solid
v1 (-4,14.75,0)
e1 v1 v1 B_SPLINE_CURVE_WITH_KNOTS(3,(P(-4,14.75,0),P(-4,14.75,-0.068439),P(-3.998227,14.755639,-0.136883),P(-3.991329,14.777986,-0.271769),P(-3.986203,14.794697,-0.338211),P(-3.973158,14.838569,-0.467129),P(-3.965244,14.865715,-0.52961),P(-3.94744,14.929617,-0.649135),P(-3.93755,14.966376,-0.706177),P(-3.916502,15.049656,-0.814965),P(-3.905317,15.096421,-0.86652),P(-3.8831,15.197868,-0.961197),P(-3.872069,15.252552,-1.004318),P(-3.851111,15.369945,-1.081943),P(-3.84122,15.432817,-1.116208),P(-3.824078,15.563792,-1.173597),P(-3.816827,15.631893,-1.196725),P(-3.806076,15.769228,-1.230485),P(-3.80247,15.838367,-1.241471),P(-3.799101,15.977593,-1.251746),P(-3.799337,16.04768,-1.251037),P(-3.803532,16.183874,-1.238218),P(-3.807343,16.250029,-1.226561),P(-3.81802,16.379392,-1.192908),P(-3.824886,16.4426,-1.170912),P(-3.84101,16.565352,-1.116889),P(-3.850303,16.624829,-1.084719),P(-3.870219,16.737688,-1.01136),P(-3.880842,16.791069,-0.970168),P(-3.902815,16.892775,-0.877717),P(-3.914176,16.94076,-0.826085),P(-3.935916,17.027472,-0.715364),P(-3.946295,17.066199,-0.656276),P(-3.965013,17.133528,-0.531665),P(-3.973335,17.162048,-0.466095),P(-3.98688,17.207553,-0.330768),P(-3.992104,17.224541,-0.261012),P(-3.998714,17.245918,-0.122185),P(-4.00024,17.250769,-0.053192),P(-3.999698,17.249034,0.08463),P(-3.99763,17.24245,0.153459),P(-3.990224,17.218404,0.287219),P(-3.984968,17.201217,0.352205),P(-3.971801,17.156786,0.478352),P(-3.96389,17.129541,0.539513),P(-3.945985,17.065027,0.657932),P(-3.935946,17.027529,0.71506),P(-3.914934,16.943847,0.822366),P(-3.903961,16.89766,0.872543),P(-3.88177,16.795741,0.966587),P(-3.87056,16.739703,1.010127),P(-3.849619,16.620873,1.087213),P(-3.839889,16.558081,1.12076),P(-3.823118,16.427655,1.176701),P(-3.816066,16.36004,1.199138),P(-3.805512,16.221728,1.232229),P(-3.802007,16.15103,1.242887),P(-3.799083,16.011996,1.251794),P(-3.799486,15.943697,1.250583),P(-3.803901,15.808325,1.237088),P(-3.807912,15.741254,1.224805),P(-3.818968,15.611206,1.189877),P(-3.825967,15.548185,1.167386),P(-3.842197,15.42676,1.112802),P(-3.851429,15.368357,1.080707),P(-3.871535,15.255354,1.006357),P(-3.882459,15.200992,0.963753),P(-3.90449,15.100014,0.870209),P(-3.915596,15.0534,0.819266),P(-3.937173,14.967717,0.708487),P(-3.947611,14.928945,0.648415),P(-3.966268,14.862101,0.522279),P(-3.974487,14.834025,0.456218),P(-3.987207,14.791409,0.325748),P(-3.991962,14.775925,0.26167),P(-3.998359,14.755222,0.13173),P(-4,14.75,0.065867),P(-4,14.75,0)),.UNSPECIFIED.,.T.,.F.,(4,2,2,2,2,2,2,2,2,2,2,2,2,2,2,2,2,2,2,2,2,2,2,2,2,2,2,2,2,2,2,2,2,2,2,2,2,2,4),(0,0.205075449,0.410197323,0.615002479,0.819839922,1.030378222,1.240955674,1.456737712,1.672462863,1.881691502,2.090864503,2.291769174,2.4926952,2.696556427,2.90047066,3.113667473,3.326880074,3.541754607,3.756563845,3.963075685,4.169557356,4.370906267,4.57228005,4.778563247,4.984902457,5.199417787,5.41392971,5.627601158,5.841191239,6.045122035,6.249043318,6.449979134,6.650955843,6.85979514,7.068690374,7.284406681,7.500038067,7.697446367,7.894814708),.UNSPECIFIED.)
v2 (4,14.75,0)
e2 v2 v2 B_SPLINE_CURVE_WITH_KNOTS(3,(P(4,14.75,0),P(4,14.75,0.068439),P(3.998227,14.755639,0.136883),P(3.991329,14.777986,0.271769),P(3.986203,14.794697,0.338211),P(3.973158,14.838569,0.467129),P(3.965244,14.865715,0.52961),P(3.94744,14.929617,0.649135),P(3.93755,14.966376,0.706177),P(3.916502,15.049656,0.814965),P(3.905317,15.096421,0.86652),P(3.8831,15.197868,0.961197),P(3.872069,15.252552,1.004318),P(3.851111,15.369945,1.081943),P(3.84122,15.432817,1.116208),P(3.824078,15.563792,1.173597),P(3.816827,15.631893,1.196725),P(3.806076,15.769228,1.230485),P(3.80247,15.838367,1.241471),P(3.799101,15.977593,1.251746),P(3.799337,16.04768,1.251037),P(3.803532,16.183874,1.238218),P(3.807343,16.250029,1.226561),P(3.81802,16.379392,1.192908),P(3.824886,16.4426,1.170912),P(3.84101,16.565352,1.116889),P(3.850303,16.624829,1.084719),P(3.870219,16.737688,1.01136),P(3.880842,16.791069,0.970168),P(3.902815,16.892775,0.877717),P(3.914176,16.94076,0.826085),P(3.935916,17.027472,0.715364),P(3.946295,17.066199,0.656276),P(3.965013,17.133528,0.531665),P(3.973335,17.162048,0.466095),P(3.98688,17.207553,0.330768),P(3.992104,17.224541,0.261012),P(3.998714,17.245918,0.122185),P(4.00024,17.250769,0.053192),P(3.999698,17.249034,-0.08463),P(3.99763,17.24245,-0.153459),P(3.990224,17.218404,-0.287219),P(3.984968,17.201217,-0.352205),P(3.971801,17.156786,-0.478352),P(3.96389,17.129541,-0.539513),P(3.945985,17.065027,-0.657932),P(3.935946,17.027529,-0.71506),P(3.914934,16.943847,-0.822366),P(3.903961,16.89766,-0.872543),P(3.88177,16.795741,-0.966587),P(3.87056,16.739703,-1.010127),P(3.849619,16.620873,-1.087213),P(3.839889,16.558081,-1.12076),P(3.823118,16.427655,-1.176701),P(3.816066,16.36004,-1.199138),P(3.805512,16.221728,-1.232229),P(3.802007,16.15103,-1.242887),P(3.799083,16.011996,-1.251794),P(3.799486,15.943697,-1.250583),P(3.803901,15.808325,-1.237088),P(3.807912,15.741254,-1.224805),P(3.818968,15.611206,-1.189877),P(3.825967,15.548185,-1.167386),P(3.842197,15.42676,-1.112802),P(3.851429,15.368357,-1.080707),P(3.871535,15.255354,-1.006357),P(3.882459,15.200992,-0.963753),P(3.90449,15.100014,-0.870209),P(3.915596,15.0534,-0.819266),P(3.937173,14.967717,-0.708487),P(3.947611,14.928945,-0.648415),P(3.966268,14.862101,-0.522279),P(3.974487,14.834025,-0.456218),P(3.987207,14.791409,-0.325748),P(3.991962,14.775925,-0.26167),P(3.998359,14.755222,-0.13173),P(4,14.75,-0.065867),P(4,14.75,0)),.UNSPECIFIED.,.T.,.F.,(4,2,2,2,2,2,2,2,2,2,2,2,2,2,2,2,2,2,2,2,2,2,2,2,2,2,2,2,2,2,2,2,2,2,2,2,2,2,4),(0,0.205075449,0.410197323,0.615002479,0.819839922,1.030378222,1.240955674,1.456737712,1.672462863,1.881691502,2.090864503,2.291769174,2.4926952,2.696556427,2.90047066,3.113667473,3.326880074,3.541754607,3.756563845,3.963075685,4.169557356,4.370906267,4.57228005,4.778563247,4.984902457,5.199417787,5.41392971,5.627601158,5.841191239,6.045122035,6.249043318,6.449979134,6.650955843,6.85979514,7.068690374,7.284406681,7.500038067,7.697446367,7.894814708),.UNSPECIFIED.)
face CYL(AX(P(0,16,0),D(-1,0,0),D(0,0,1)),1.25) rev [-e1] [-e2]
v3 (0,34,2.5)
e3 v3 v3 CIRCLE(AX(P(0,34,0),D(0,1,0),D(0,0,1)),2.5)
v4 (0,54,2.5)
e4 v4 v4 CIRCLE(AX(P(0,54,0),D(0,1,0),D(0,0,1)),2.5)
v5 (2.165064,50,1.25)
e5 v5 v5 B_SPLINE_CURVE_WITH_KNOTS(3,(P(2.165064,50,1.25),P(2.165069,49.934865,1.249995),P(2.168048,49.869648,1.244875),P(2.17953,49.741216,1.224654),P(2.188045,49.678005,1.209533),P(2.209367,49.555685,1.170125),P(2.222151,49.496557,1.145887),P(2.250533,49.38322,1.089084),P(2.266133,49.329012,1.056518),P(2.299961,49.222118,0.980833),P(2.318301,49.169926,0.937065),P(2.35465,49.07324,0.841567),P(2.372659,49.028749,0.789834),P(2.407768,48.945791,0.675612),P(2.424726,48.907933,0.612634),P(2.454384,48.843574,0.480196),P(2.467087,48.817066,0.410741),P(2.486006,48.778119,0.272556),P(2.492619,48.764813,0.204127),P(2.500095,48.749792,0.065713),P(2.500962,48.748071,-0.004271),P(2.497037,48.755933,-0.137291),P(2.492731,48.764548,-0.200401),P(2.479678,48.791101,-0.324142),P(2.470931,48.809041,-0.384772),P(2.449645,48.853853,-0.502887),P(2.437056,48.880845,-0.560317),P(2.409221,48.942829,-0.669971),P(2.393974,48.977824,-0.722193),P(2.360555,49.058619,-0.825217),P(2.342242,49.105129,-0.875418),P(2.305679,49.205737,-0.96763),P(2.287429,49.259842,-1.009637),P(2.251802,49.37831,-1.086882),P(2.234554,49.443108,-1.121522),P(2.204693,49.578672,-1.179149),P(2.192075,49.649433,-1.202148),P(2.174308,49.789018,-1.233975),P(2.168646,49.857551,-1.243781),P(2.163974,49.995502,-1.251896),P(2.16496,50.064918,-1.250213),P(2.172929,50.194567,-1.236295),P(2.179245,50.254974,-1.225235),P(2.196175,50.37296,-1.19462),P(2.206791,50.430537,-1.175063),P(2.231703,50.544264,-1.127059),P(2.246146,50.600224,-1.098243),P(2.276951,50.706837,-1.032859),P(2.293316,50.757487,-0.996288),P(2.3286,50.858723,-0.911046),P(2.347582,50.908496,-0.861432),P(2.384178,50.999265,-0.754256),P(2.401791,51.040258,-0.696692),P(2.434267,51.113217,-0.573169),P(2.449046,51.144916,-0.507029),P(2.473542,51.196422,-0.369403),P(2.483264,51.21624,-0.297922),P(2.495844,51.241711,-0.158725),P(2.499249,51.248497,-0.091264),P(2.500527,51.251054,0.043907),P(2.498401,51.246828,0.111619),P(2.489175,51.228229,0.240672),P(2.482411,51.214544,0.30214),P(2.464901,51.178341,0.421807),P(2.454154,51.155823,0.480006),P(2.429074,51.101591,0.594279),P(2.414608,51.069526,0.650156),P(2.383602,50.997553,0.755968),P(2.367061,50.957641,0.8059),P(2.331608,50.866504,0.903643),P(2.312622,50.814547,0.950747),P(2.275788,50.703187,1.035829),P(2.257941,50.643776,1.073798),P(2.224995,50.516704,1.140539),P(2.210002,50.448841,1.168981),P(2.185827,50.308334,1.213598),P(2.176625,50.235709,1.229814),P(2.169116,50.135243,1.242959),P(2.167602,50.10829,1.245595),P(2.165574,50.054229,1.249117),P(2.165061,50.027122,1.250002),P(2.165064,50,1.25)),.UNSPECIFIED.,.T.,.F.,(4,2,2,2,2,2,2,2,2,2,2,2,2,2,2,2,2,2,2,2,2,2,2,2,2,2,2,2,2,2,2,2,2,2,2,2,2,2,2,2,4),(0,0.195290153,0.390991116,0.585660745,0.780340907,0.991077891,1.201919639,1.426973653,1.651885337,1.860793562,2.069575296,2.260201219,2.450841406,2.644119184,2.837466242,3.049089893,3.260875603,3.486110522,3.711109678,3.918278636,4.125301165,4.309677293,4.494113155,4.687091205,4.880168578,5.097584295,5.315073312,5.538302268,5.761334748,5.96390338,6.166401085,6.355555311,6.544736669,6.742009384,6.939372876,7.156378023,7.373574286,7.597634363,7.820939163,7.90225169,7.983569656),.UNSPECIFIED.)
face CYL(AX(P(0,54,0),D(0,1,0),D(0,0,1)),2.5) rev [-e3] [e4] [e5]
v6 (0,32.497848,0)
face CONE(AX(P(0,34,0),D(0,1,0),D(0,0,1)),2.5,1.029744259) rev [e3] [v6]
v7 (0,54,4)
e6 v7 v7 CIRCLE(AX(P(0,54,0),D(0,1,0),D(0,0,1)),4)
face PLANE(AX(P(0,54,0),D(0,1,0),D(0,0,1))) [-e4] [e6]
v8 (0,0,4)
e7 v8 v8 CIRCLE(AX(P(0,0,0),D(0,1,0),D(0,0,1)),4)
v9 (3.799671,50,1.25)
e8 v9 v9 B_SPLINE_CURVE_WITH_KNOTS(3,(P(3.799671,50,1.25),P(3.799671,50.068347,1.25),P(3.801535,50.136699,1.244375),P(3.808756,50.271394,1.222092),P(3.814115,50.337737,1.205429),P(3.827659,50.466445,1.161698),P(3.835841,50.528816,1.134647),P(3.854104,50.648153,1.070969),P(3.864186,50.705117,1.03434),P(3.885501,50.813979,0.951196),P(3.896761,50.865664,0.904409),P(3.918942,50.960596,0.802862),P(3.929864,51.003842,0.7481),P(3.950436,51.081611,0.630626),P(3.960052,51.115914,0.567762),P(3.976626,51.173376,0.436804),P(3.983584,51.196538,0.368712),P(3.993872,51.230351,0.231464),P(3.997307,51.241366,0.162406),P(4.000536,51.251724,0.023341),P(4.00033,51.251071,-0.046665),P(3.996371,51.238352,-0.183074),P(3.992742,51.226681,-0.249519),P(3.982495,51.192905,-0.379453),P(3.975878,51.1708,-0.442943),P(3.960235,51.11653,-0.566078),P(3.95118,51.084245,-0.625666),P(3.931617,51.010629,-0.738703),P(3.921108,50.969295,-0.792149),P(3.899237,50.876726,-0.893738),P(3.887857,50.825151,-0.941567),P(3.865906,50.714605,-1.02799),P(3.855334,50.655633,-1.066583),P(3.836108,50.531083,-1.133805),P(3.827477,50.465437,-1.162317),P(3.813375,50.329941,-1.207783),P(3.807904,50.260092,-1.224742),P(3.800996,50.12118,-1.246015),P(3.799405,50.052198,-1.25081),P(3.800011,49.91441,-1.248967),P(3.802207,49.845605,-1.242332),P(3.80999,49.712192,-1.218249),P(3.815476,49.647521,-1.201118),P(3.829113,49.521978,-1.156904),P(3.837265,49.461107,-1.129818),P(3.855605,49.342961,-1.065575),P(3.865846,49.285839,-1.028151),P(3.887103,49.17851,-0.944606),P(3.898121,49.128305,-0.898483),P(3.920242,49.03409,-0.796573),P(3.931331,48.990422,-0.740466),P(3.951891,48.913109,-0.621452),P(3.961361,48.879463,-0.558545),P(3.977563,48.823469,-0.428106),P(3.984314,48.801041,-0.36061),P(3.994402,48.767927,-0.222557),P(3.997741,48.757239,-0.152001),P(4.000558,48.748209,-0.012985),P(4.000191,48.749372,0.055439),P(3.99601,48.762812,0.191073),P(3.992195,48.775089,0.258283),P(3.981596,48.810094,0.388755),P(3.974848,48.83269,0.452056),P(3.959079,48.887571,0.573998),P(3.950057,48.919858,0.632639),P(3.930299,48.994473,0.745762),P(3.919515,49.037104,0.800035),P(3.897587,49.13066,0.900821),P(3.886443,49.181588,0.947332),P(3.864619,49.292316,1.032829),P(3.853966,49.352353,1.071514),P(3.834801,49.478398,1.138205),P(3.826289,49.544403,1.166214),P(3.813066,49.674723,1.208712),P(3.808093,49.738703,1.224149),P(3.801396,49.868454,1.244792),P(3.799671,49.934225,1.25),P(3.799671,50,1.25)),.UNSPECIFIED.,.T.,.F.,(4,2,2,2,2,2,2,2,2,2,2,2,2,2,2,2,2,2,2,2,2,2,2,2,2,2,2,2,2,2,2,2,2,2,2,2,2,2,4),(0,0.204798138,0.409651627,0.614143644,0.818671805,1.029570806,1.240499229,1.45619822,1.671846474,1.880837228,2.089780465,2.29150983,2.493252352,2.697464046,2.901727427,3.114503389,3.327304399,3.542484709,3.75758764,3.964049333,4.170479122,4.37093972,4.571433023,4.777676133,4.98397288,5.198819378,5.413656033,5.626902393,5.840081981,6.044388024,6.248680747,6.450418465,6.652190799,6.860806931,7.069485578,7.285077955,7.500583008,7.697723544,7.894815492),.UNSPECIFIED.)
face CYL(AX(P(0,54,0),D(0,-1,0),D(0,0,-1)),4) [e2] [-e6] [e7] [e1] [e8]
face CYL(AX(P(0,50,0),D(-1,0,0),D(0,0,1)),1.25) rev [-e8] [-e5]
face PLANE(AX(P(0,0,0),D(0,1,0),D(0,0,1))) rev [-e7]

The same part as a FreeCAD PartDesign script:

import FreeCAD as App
import Part
import Sketcher
from FreeCAD import Vector
Q = App.Units.Quantity


def add_polygon(sketch, points):
    """Adds a closed chain of lines whose ends are joined by coincident constraints."""
    first, n = sketch.GeometryCount, len(points)
    for a, b in zip(points, points[1:] + points[:1]):
        sketch.addGeometry(Part.LineSegment(App.Vector(*a, 0), App.Vector(*b, 0)), False)
    for i in range(n):
        sketch.addConstraint(Sketcher.Constraint("Coincident", first + i, 2, first + (i + 1) % n, 1))

doc = App.newDocument("Part")
body = doc.addObject("PartDesign::Body", "Body")

# Sketch on XZ plane
sketch1 = doc.addObject("Sketcher::SketchObject", "Sketch")
body.addObject(sketch1)
sketch1.AttachmentSupport = (doc.XZ_Plane, [""])
sketch1.MapMode = "FlatFace"
sketch1.addGeometry(Part.Circle(Vector(0, 0, 0), Vector(0, 0, 1), 4), False)
sketch1.addConstraint(Sketcher.Constraint("Coincident", 0, 3, -1, 1))
sketch1.addConstraint(Sketcher.Constraint("Diameter", 0, Q("8 mm")))
pad1 = doc.addObject("PartDesign::Pad", "Pad")
body.addObject(pad1)
pad1.Profile = sketch1
pad1.Length = 54
pad1.Reversed = True

# Sketch on XZ plane
sketch2 = doc.addObject("Sketcher::SketchObject", "Sketch001")
body.addObject(sketch2)
sketch2.AttachmentSupport = (doc.XZ_Plane, [""])
sketch2.MapMode = "FlatFace"
sketch2.AttachmentOffset = App.Placement(Vector(0, 0, -54), App.Rotation())
sketch2.addGeometry(Part.Circle(Vector(0, 0, 0), Vector(0, 0, 1), 2.5), False)
sketch2.addConstraint(Sketcher.Constraint("Coincident", 0, 3, -1, 1))
sketch2.addConstraint(Sketcher.Constraint("Diameter", 0, Q("5 mm")))
doc.recompute()
hole = doc.addObject("PartDesign::Hole", "Hole")
body.addObject(hole)
hole.Profile = sketch2
hole.ThreadType = "None"
hole.Diameter = 5
hole.DepthType = "Dimension"
hole.Depth = 20
hole.DrillPoint = "Angled"
hole.DrillPointAngle = 118
hole.Reversed = True

# Sketch on XZ plane
sketch3 = doc.addObject("Sketcher::SketchObject", "Sketch002")
body.addObject(sketch3)
sketch3.AttachmentSupport = (doc.XZ_Plane, [""])
sketch3.MapMode = "FlatFace"
sketch3.AttachmentOffset = App.Placement(Vector(0, 0, -50), App.Rotation())
add_polygon(sketch3, [(20.751076, 0), (0, 0), (0, 1.25), (20, 1.25)])  # lines 0-3
sketch3.addConstraint(Sketcher.Constraint("Horizontal", 0))
sketch3.addConstraint(Sketcher.Constraint("Vertical", 1))
sketch3.addConstraint(Sketcher.Constraint("Horizontal", 2))
sketch3.addConstraint(Sketcher.Constraint("Coincident", 0, 2, -1, 1))
sketch3.addConstraint(Sketcher.Constraint("DistanceX", 2, 1, 2, 2, Q("20 mm")))
sketch3.addConstraint(Sketcher.Constraint("Angle", 3, Q("-59 deg")))
sketch3.addConstraint(Sketcher.Constraint("DistanceY", 1, 1, 1, 2, Q("1.25 mm")))
groove = doc.addObject("PartDesign::Groove", "Groove")
body.addObject(groove)
groove.Profile = sketch3
groove.ReferenceAxis = (sketch3, ["H_Axis"])
groove.Angle = 360

# Sketch on XZ plane
sketch4 = doc.addObject("Sketcher::SketchObject", "Sketch003")
body.addObject(sketch4)
sketch4.AttachmentSupport = (doc.XZ_Plane, [""])
sketch4.MapMode = "FlatFace"
sketch4.AttachmentOffset = App.Placement(Vector(0, 0, -16), App.Rotation())
add_polygon(sketch4, [(4, 0), (0, 0), (0, 1.25), (4, 1.25)])  # lines 0-3
sketch4.addConstraint(Sketcher.Constraint("Horizontal", 0))
sketch4.addConstraint(Sketcher.Constraint("Vertical", 1))
sketch4.addConstraint(Sketcher.Constraint("Horizontal", 2))
sketch4.addConstraint(Sketcher.Constraint("Vertical", 3))
sketch4.addConstraint(Sketcher.Constraint("Coincident", 0, 2, -1, 1))
sketch4.addConstraint(Sketcher.Constraint("DistanceX", 0, 2, 0, 1, Q("4 mm")))
sketch4.addConstraint(Sketcher.Constraint("DistanceY", 1, 1, 1, 2, Q("1.25 mm")))
groove2 = doc.addObject("PartDesign::Groove", "Groove001")
body.addObject(groove2)
groove2.Profile = sketch4
groove2.ReferenceAxis = (sketch4, ["H_Axis"])
groove2.Angle = 360

# Sketch on YZ plane
sketch5 = doc.addObject("Sketcher::SketchObject", "Sketch004")
body.addObject(sketch5)
sketch5.AttachmentSupport = (doc.YZ_Plane, [""])
sketch5.MapMode = "FlatFace"
sketch5.addGeometry(Part.Circle(Vector(16, 0, 0), Vector(0, 0, 1), 1.25), False)
sketch5.addConstraint(Sketcher.Constraint("PointOnObject", 0, 3, -1))
sketch5.addConstraint(Sketcher.Constraint("Diameter", 0, Q("2.5 mm")))
sketch5.addConstraint(Sketcher.Constraint("DistanceX", -1, 1, 0, 3, Q("16 mm")))
doc.recompute()
hole2 = doc.addObject("PartDesign::Hole", "Hole001")
body.addObject(hole2)
hole2.Profile = sketch5
hole2.ThreadType = "None"
hole2.Diameter = 2.5
hole2.DepthType = "ThroughAll"

doc.recompute()
